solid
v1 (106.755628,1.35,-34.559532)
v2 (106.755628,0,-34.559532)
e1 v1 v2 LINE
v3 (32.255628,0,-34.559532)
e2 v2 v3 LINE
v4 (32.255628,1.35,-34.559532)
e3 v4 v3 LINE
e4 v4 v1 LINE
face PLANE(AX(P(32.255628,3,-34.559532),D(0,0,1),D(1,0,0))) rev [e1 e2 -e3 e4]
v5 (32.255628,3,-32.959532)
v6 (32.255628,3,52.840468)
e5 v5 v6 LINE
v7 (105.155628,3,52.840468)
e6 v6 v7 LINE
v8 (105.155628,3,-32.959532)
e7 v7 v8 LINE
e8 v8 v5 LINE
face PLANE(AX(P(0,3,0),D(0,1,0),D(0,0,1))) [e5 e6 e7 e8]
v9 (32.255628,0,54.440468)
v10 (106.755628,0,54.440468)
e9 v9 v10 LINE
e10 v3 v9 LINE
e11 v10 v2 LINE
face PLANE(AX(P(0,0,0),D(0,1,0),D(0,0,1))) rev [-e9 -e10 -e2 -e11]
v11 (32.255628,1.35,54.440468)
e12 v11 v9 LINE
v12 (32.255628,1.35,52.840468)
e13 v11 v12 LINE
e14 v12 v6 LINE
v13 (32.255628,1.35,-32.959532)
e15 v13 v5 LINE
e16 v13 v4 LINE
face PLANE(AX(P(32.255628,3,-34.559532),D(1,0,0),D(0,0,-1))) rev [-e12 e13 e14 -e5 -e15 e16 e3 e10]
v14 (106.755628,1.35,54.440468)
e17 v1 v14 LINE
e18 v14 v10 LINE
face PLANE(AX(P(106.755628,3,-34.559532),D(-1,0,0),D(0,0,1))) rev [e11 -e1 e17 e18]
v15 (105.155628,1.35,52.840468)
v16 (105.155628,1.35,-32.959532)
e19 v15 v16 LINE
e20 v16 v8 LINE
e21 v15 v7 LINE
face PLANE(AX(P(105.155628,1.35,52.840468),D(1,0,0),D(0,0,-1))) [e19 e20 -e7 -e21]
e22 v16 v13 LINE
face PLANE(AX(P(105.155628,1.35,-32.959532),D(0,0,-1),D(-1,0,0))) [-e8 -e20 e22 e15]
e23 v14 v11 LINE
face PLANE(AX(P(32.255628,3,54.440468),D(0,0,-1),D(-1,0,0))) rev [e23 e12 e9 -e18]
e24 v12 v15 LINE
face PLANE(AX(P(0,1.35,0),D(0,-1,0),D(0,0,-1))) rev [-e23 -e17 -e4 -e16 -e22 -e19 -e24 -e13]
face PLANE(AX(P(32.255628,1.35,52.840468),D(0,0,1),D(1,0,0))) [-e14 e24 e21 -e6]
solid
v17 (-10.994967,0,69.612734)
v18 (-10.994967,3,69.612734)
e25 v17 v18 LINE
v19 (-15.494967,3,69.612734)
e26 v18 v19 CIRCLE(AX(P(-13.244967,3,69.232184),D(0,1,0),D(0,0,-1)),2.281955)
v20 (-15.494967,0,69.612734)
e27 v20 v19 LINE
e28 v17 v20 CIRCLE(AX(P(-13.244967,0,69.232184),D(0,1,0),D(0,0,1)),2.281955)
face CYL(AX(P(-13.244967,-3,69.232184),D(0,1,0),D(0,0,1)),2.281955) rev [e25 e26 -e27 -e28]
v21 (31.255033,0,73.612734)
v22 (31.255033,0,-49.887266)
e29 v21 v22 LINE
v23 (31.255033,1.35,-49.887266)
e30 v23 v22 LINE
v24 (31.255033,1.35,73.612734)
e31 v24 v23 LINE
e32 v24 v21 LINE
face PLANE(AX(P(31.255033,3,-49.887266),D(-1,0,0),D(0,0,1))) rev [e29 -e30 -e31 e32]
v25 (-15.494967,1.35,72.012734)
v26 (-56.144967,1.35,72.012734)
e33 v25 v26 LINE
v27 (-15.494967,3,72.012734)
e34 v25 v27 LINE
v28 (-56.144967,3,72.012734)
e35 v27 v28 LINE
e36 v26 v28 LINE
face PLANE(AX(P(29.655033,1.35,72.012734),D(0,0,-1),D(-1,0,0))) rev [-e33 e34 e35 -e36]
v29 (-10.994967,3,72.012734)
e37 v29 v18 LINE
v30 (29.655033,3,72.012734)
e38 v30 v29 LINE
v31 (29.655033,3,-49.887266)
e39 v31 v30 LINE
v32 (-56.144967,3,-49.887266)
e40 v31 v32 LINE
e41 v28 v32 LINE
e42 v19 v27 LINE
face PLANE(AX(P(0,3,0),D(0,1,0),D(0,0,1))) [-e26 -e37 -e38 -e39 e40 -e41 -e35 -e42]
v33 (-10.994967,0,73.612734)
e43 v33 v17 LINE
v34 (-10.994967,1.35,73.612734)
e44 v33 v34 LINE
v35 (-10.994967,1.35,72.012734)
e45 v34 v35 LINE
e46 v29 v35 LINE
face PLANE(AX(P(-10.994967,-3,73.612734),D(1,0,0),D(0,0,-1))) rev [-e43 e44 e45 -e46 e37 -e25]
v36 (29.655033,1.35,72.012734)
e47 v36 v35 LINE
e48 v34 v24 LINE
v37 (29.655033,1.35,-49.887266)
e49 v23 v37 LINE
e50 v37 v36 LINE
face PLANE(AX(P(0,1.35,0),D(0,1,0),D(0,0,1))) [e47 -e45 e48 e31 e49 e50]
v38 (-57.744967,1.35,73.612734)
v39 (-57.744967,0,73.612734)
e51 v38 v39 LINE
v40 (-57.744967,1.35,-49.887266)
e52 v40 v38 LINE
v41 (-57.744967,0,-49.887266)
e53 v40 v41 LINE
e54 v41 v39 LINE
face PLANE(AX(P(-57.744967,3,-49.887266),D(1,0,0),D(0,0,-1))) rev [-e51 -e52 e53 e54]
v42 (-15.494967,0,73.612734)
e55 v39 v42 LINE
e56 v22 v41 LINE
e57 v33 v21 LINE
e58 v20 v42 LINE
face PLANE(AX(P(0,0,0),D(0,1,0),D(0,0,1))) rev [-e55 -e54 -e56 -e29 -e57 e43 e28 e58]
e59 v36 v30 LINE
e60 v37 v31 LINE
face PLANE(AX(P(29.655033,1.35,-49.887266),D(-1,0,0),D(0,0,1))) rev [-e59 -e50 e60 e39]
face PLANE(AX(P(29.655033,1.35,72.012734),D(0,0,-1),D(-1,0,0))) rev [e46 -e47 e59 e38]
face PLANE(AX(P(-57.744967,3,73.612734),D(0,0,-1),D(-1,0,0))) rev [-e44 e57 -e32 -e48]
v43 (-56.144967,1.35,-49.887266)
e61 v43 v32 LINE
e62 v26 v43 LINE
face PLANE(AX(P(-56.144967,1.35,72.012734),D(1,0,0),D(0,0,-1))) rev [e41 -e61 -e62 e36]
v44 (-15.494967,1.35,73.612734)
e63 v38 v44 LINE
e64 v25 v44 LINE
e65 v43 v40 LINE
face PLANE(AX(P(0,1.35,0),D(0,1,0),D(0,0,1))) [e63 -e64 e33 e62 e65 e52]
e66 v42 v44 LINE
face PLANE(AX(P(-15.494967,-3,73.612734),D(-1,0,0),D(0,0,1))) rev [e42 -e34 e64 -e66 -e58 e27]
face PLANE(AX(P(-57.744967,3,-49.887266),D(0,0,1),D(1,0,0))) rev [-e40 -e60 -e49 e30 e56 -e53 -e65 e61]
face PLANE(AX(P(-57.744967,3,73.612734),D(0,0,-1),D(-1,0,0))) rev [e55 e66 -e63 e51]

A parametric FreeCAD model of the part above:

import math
import FreeCAD as App
import Part
import Sketcher


def add_polygon(sketch, points):
    """Adds a closed chain of lines whose ends are joined by coincident constraints."""
    first, n = sketch.GeometryCount, len(points)
    for a, b in zip(points, points[1:] + points[:1]):
        sketch.addGeometry(Part.LineSegment(App.Vector(*a, 0), App.Vector(*b, 0)), False)
    for i in range(n):
        sketch.addConstraint(Sketcher.Constraint("Coincident", first + i, 2, first + (i + 1) % n, 1))

doc = App.newDocument("Part")
body = doc.addObject("PartDesign::Body", "Body")

sketch1 = body.newObject("Sketcher::SketchObject", "Sketch")
sketch1.AttachmentSupport = (doc.getObject("XZ_Plane"), [""])
sketch1.MapMode = "FlatFace"
add_polygon(sketch1, [(-58, -50), (-58, 74), (31, 74), (31, -50)])
sketch1.addConstraint([
    Sketcher.Constraint("Vertical", 0),
    Sketcher.Constraint("Horizontal", 1),
    Sketcher.Constraint("Vertical", 2),
    Sketcher.Constraint("Horizontal", 3),
    Sketcher.Constraint("DistanceX", 1, 1, 1, 2, 89.0),
    Sketcher.Constraint("DistanceY", 0, 1, 0, 2, 123.5),
    Sketcher.Constraint("DistanceX", 0, 2, -1, 1, 57.744967),
    Sketcher.Constraint("DistanceY", -1, 1, 0, 2, 73.612734),
])
pad1 = body.newObject("PartDesign::Pad", "Pad")
pad1.Profile = sketch1
pad1.Length = 3
pad1.Reversed = True
body2 = doc.addObject("PartDesign::Body", "Body001")

sketch2 = body2.newObject("Sketcher::SketchObject", "Sketch001")
sketch2.AttachmentSupport = (doc.getObject("XZ_Plane001"), [""])
sketch2.MapMode = "FlatFace"
add_polygon(sketch2, [(32, -35), (32, 54), (107, 54), (107, -35)])
sketch2.addConstraint([
    Sketcher.Constraint("Vertical", 0),
    Sketcher.Constraint("Horizontal", 1),
    Sketcher.Constraint("Vertical", 2),
    Sketcher.Constraint("Horizontal", 3),
    Sketcher.Constraint("DistanceY", 0, 1, 0, 2, 89.0),
    Sketcher.Constraint("DistanceX", 1, 1, 1, 2, 74.5),
    Sketcher.Constraint("DistanceX", -1, 1, 0, 2, 32.255628),
    Sketcher.Constraint("DistanceY", -1, 1, 0, 2, 54.440468),
])
pad2 = body2.newObject("PartDesign::Pad", "Pad001")
pad2.Profile = sketch2
pad2.Length = 3
pad2.Reversed = True
body3 = doc.addObject("PartDesign::Body", "Body002")
body3.AllowCompound = True

sketch3 = body3.newObject("Sketcher::SketchObject", "Sketch002")
sketch3.AttachmentSupport = (doc.getObject("XZ_Plane002"), [""])
sketch3.MapMode = "FlatFace"
sketch3.AttachmentOffset = App.Placement(App.Vector(0, 0, -3), App.Rotation())
add_polygon(sketch3, [(-57.7, -49.9), (-57.7, 73.6), (31.3, 73.6), (31.3, -49.9), (29.7, -49.9), (29.7, 72), (-56.1, 72), (-56.1, -49.9)])
add_polygon(sketch3, [(106.8, -34.6), (32.3, -34.6), (32.3, -33), (105.2, -33), (105.2, 52.8), (32.3, 52.8), (32.3, 54.4), (106.8, 54.4)])
sketch3.addConstraint([
    Sketcher.Constraint("Vertical", 0),
    Sketcher.Constraint("Horizontal", 1),
    Sketcher.Constraint("Vertical", 2),
    Sketcher.Constraint("Horizontal", 3),
    Sketcher.Constraint("Vertical", 4),
    Sketcher.Constraint("Horizontal", 5),
    Sketcher.Constraint("Vertical", 6),
    Sketcher.Constraint("Horizontal", 7),
    Sketcher.Constraint("Horizontal", 8),
    Sketcher.Constraint("Vertical", 9),
    Sketcher.Constraint("Horizontal", 10),
    Sketcher.Constraint("Vertical", 11),
    Sketcher.Constraint("Horizontal", 12),
    Sketcher.Constraint("Vertical", 13),
    Sketcher.Constraint("Horizontal", 14),
    Sketcher.Constraint("Vertical", 15),
    Sketcher.Constraint("Horizontal", 3, 2, 6, 2),
    Sketcher.Constraint("Vertical", 9, 2, 12, 2),
    Sketcher.Constraint("Equal", 3, 7),
    Sketcher.Constraint("Equal", 7, 9),
    Sketcher.Constraint("Equal", 5, 11),
    Sketcher.Constraint("Equal", 9, 13),
    Sketcher.Constraint("DistanceX", 1, 1, 1, 2, 89.0),
    Sketcher.Constraint("DistanceX", 3, 2, 3, 1, 1.6),
    Sketcher.Constraint("DistanceX", 8, 2, 8, 1, 74.5),
    Sketcher.Constraint("DistanceX", 10, 1, 10, 2, 72.9),
    Sketcher.Constraint("DistanceY", 0, 1, 0, 2, 123.5),
    Sketcher.Constraint("DistanceY", 4, 1, 4, 2, 121.9),
    Sketcher.Constraint("DistanceX", -1, 1, 8, 2, 32.255628),
    Sketcher.Constraint("DistanceY", 8, 2, -1, 1, 34.559532),
    Sketcher.Constraint("DistanceX", 0, 2, -1, 1, 57.744967),
    Sketcher.Constraint("DistanceY", -1, 1, 0, 2, 73.612734),
])
pad3 = body3.newObject("PartDesign::Pad", "Pad002")
pad3.Profile = sketch3
pad3.Length = 1.65
doc.recompute()

body4 = doc.addObject("PartDesign::Body", "Body003")
body4.BaseFeature = body3
boolean = body.newObject("PartDesign::Boolean", "Boolean")
boolean.Type = "Cut"
boolean.addObjects([body4])
doc.recompute()

sketch4 = body.newObject("Sketcher::SketchObject", "Sketch003")
sketch4.AttachmentSupport = (doc.getObject("XZ_Plane"), [""])
sketch4.MapMode = "FlatFace"
sketch4.AttachmentOffset = App.Placement(App.Vector(0, 0, -3), App.Rotation())
sketch4.addGeometry([
    Part.LineSegment(App.Vector(-15.5, 69.6, 0), App.Vector(-15.5, 73.6, 0)),
    Part.LineSegment(App.Vector(-15.5, 73.6, 0), App.Vector(-11, 73.6, 0)),
    Part.LineSegment(App.Vector(-11, 73.6, 0), App.Vector(-11, 69.6, 0)),
    Part.ArcOfCircle(Part.Circle(App.Vector(-13.2, 69.2, 0), App.Vector(0, 0, 1), 2.3), math.radians(170), math.radians(370)),
], False)
sketch4.addConstraint([
    Sketcher.Constraint("Coincident", 0, 2, 1, 1),
    Sketcher.Constraint("Coincident", 1, 2, 2, 1),
    Sketcher.Constraint("Coincident", 2, 2, 3, 2),
    Sketcher.Constraint("Coincident", 3, 1, 0, 1),
    Sketcher.Constraint("Vertical", 0),
    Sketcher.Constraint("Horizontal", 1),
    Sketcher.Constraint("Vertical", 2),
    Sketcher.Constraint("Horizontal", 2, 2, 3, 1),
    Sketcher.Constraint("DistanceY", 0, 1, 0, 2, 4.0),
    Sketcher.Constraint("DistanceX", 1, 1, 1, 2, 4.5),
    Sketcher.Constraint("Radius", 3, 2.281955),
    Sketcher.Constraint("DistanceX", 3, 3, -1, 1, 13.244967),
    Sketcher.Constraint("DistanceY", -1, 1, 3, 3, 69.232184),
])
pocket1 = body.newObject("PartDesign::Pocket", "Pocket")
pocket1.Profile = sketch4
pocket1.Length = 6
pocket1.Reversed = True
doc.recompute()

boolean2 = body2.newObject("PartDesign::Boolean", "Boolean001")
boolean2.Type = "Cut"
boolean2.addObjects([body3])

doc.recompute()
